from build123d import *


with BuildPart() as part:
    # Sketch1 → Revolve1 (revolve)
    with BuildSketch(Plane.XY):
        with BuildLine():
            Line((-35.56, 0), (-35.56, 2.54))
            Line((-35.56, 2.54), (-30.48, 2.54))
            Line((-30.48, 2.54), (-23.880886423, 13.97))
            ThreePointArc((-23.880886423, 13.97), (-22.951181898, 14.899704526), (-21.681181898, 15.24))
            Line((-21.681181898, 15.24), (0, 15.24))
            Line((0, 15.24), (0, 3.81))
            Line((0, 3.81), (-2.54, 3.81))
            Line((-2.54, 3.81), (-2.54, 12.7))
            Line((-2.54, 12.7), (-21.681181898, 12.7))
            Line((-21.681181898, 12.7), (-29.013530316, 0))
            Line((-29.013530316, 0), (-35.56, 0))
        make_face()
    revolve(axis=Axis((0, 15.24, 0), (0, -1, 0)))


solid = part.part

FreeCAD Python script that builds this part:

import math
import FreeCAD as App
import Part
import Sketcher

V = App.Vector
Q = App.Units.Quantity

doc = App.newDocument("Part")
body = doc.addObject("PartDesign::Body", "Body")

# Sketch on XY plane
sketch1 = body.newObject("Sketcher::SketchObject", "Sketch")
sketch1.AttachmentSupport = (doc.getObject("XY_Plane"), [""])
sketch1.MapMode = "FlatFace"
sketch1.addGeometry(Part.LineSegment(V(-35.6, 2.5, 0), V(-35.6, 0, 0)), False)
sketch1.addGeometry(Part.LineSegment(V(-35.6, 0, 0), V(-29, 0, 0)), False)
sketch1.addGeometry(Part.LineSegment(V(-29, 0, 0), V(-21.7, 12.7, 0)), False)
sketch1.addGeometry(Part.LineSegment(V(-21.7, 12.7, 0), V(-2.5, 12.7, 0)), False)
sketch1.addGeometry(Part.LineSegment(V(-2.5, 12.7, 0), V(-2.5, 3.8, 0)), False)
sketch1.addGeometry(Part.LineSegment(V(-2.5, 3.8, 0), V(0, 3.8, 0)), False)
sketch1.addGeometry(Part.LineSegment(V(0, 3.8, 0), V(0, 15.2, 0)), False)
sketch1.addGeometry(Part.LineSegment(V(0, 15.2, 0), V(-21.7, 15.2, 0)), False)
sketch1.addGeometry(Part.ArcOfCircle(Part.Circle(V(-21.7, 12.7, 0), V(0, 0, 1), 2.5), math.radians(90), math.radians(150)), False)
sketch1.addGeometry(Part.LineSegment(V(-23.9, 14, 0), V(-30.5, 2.5, 0)), False)
sketch1.addGeometry(Part.LineSegment(V(-30.5, 2.5, 0), V(-35.6, 2.5, 0)), False)
sketch1.addConstraint(Sketcher.Constraint("Coincident", 0, 2, 1, 1))
sketch1.addConstraint(Sketcher.Constraint("Coincident", 1, 2, 2, 1))
sketch1.addConstraint(Sketcher.Constraint("Coincident", 2, 2, 3, 1))
sketch1.addConstraint(Sketcher.Constraint("Coincident", 3, 2, 4, 1))
sketch1.addConstraint(Sketcher.Constraint("Coincident", 4, 2, 5, 1))
sketch1.addConstraint(Sketcher.Constraint("Coincident", 5, 2, 6, 1))
sketch1.addConstraint(Sketcher.Constraint("Coincident", 6, 2, 7, 1))
sketch1.addConstraint(Sketcher.Constraint("Tangent", 7, 2, 8, 1))
sketch1.addConstraint(Sketcher.Constraint("Tangent", 8, 2, 9, 1))
sketch1.addConstraint(Sketcher.Constraint("Coincident", 9, 2, 10, 1))
sketch1.addConstraint(Sketcher.Constraint("Coincident", 10, 2, 0, 1))
sketch1.addConstraint(Sketcher.Constraint("Vertical", 0))
sketch1.addConstraint(Sketcher.Constraint("Horizontal", 1))
sketch1.addConstraint(Sketcher.Constraint("Horizontal", 3))
sketch1.addConstraint(Sketcher.Constraint("Vertical", 4))
sketch1.addConstraint(Sketcher.Constraint("Horizontal", 5))
sketch1.addConstraint(Sketcher.Constraint("Vertical", 6))
sketch1.addConstraint(Sketcher.Constraint("Horizontal", 7))
sketch1.addConstraint(Sketcher.Constraint("Horizontal", 10))
sketch1.addConstraint(Sketcher.Constraint("Coincident", 2, 2, 8, 3))
sketch1.addConstraint(Sketcher.Constraint("PointOnObject", 0, 2, -1))
sketch1.addConstraint(Sketcher.Constraint("PointOnObject", 5, 2, -2))
sketch1.addConstraint(Sketcher.Constraint("Parallel", 2, 9))
sketch1.addConstraint(Sketcher.Constraint("Equal", 5, 0))
sketch1.addConstraint(Sketcher.Constraint("Radius", 8, Q("0.1 in")))
sketch1.addConstraint(Sketcher.Constraint("DistanceX", 5, 1, 5, 2, Q("0.1 in")))
sketch1.addConstraint(Sketcher.Constraint("DistanceX", 10, 2, 10, 1, Q("0.2 in")))
sketch1.addConstraint(Sketcher.Constraint("Angle", 2, Q("60 deg")))
sketch1.addConstraint(Sketcher.Constraint("DistanceY", 4, 2, 4, 1, Q("0.35 in")))
sketch1.addConstraint(Sketcher.Constraint("DistanceY", -1, 1, 8, 3, Q("0.5 in")))
sketch1.addConstraint(Sketcher.Constraint("DistanceX", 0, 2, -1, 1, Q("1.4 in")))
revolution = body.newObject("PartDesign::Revolution", "Revolution")
revolution.Profile = sketch1
revolution.ReferenceAxis = (sketch1, ["V_Axis"])
revolution.Angle = 360

doc.recompute()
